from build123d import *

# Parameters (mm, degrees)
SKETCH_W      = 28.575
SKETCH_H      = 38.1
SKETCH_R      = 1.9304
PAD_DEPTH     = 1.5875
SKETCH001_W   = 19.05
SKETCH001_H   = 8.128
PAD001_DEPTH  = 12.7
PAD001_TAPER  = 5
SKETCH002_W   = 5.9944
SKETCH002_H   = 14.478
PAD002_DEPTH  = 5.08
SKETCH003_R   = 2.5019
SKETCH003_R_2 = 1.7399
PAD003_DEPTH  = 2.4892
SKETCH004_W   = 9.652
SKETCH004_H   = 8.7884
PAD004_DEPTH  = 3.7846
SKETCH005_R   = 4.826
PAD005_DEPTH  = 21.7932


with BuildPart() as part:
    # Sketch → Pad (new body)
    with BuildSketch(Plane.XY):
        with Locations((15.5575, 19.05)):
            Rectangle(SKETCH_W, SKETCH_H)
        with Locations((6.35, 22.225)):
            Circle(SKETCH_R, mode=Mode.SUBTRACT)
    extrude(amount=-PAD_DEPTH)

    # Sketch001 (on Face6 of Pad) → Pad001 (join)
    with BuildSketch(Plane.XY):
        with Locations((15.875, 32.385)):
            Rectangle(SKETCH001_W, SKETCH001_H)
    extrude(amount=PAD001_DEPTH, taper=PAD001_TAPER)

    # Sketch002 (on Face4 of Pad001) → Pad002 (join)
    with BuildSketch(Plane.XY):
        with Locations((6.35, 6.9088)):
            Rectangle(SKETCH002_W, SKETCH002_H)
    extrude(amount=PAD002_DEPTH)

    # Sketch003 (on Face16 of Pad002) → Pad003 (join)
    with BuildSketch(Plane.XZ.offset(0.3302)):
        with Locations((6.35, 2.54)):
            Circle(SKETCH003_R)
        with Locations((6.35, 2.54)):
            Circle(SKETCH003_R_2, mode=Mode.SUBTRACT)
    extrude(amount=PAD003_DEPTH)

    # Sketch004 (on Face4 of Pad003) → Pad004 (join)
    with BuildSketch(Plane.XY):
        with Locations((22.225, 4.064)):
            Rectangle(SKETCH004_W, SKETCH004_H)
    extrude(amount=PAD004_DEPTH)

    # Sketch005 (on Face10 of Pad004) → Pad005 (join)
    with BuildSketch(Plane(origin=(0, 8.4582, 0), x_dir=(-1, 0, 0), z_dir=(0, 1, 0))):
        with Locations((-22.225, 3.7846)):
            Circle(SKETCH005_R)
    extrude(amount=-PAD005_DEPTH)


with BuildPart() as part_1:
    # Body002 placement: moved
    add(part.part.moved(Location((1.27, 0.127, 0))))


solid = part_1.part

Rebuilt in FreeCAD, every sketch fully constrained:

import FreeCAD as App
import Part
import Sketcher

V = App.Vector
Q = App.Units.Quantity

doc = App.newDocument("Part")
body = doc.addObject("PartDesign::Body", "Body")

sketch1 = body.newObject("Sketcher::SketchObject", "Sketch")
sketch1.AttachmentSupport = (doc.getObject("XY_Plane"), [""])
sketch1.MapMode = "FlatFace"
sketch1.addGeometry(Part.LineSegment(V(1.27, 38.1, 0), V(1.27, 0, 0)), False)
sketch1.addGeometry(Part.LineSegment(V(1.27, 0, 0), V(29.845, 0, 0)), False)
sketch1.addGeometry(Part.LineSegment(V(29.845, 0, 0), V(29.845, 38.1, 0)), False)
sketch1.addGeometry(Part.LineSegment(V(29.845, 38.1, 0), V(1.27, 38.1, 0)), False)
sketch1.addGeometry(Part.Circle(V(6.35, 22.225, 0), V(0, 0, 1), 1.9304), False)
sketch1.addConstraint(Sketcher.Constraint("Coincident", 0, 2, 1, 1))
sketch1.addConstraint(Sketcher.Constraint("Coincident", 1, 2, 2, 1))
sketch1.addConstraint(Sketcher.Constraint("Coincident", 2, 2, 3, 1))
sketch1.addConstraint(Sketcher.Constraint("Coincident", 3, 2, 0, 1))
sketch1.addConstraint(Sketcher.Constraint("Vertical", 0))
sketch1.addConstraint(Sketcher.Constraint("Horizontal", 1))
sketch1.addConstraint(Sketcher.Constraint("Vertical", 2))
sketch1.addConstraint(Sketcher.Constraint("Horizontal", 3))
sketch1.addConstraint(Sketcher.Constraint("PointOnObject", 0, 2, -1))
sketch1.addConstraint(Sketcher.Constraint("Diameter", 4, Q("0.152 in")))
sketch1.addConstraint(Sketcher.Constraint("DistanceY", 0, 2, 0, 1, Q("1.5 in")))
sketch1.addConstraint(Sketcher.Constraint("DistanceX", 0, 2, 4, 3, Q("0.2 in")))
sketch1.addConstraint(Sketcher.Constraint("DistanceX", 1, 1, 1, 2, Q("1.125 in")))
sketch1.addConstraint(Sketcher.Constraint("DistanceX", -1, 1, 4, 3, Q("0.25 in")))
sketch1.addConstraint(Sketcher.Constraint("DistanceY", -1, 1, 4, 3, Q("0.875 in")))
pad1 = body.newObject("PartDesign::Pad", "Pad")
pad1.Profile = sketch1
pad1.Length = Q("0.0625 in")
pad1.Reversed = True

sketch2 = body.newObject("Sketcher::SketchObject", "Sketch001")
sketch2.AttachmentSupport = (doc.getObject("XY_Plane"), [""])
sketch2.MapMode = "FlatFace"
sketch2.addGeometry(Part.LineSegment(V(6.35, 36.449, 0), V(6.35, 28.321, 0)), False)
sketch2.addGeometry(Part.LineSegment(V(6.35, 28.321, 0), V(25.4, 28.321, 0)), False)
sketch2.addGeometry(Part.LineSegment(V(25.4, 28.321, 0), V(25.4, 36.449, 0)), False)
sketch2.addGeometry(Part.LineSegment(V(25.4, 36.449, 0), V(6.35, 36.449, 0)), False)
sketch2.addConstraint(Sketcher.Constraint("Coincident", 0, 2, 1, 1))
sketch2.addConstraint(Sketcher.Constraint("Coincident", 1, 2, 2, 1))
sketch2.addConstraint(Sketcher.Constraint("Coincident", 2, 2, 3, 1))
sketch2.addConstraint(Sketcher.Constraint("Coincident", 3, 2, 0, 1))
sketch2.addConstraint(Sketcher.Constraint("Vertical", 0))
sketch2.addConstraint(Sketcher.Constraint("Horizontal", 1))
sketch2.addConstraint(Sketcher.Constraint("Vertical", 2))
sketch2.addConstraint(Sketcher.Constraint("Horizontal", 3))
sketch2.addConstraint(Sketcher.Constraint("DistanceX", -1, 1, 1, 2, Q("1 in")))
sketch2.addConstraint(Sketcher.Constraint("DistanceX", 1, 1, 1, 2, Q("0.75 in")))
sketch2.addConstraint(Sketcher.Constraint("DistanceY", 0, 2, 0, 1, Q("0.32 in")))
sketch2.addConstraint(Sketcher.Constraint("DistanceY", -1, 1, 0, 2, Q("1.115 in")))
pad2 = body.newObject("PartDesign::Pad", "Pad001")
pad2.Profile = sketch2
pad2.Length = Q("0.5 in")
pad2.TaperAngle = -5

sketch3 = body.newObject("Sketcher::SketchObject", "Sketch002")
sketch3.AttachmentSupport = (doc.getObject("XY_Plane"), [""])
sketch3.MapMode = "FlatFace"
sketch3.addGeometry(Part.LineSegment(V(3.3528, 14.1478, 0), V(3.3528, -0.3302, 0)), False)
sketch3.addGeometry(Part.LineSegment(V(3.3528, -0.3302, 0), V(9.3472, -0.3302, 0)), False)
sketch3.addGeometry(Part.LineSegment(V(9.3472, -0.3302, 0), V(9.3472, 14.1478, 0)), False)
sketch3.addGeometry(Part.LineSegment(V(9.3472, 14.1478, 0), V(3.3528, 14.1478, 0)), False)
sketch3.addConstraint(Sketcher.Constraint("Coincident", 0, 2, 1, 1))
sketch3.addConstraint(Sketcher.Constraint("Coincident", 1, 2, 2, 1))
sketch3.addConstraint(Sketcher.Constraint("Coincident", 2, 2, 3, 1))
sketch3.addConstraint(Sketcher.Constraint("Coincident", 3, 2, 0, 1))
sketch3.addConstraint(Sketcher.Constraint("Vertical", 0))
sketch3.addConstraint(Sketcher.Constraint("Horizontal", 1))
sketch3.addConstraint(Sketcher.Constraint("Vertical", 2))
sketch3.addConstraint(Sketcher.Constraint("Horizontal", 3))
sketch3.addConstraint(Sketcher.Constraint("DistanceY", 0, 2, 0, 1, Q("0.57 in")))
sketch3.addConstraint(Sketcher.Constraint("DistanceX", 1, 1, 1, 2, Q("0.236 in")))
sketch3.addConstraint(Sketcher.Constraint("DistanceX", -1, 1, 0, 2, Q("0.132 in")))
sketch3.addConstraint(Sketcher.Constraint("DistanceY", 0, 2, -1, 1, Q("0.013 in")))
pad3 = body.newObject("PartDesign::Pad", "Pad002")
pad3.Profile = sketch3
pad3.Length = Q("0.2 in")

sketch4 = body.newObject("Sketcher::SketchObject", "Sketch003")
sketch4.AttachmentSupport = (doc.getObject("XZ_Plane"), [""])
sketch4.MapMode = "FlatFace"
sketch4.AttachmentOffset = App.Placement(V(0, 0, 0.013 * 25.4), App.Rotation())
sketch4.addGeometry(Part.Circle(V(6.35, 2.54, 0), V(0, 0, 1), 2.5019), False)
sketch4.addGeometry(Part.Circle(V(6.35, 2.54, 0), V(0, 0, 1), 1.7399), False)
sketch4.addConstraint(Sketcher.Constraint("Coincident", 1, 3, 0, 3))
sketch4.addConstraint(Sketcher.Constraint("Diameter", 0, Q("0.197 in")))
sketch4.addConstraint(Sketcher.Constraint("Diameter", 1, Q("0.137 in")))
sketch4.addConstraint(Sketcher.Constraint("DistanceY", -1, 1, 0, 3, Q("0.1 in")))
sketch4.addConstraint(Sketcher.Constraint("DistanceX", -1, 1, 0, 3, Q("0.25 in")))
pad4 = body.newObject("PartDesign::Pad", "Pad003")
pad4.Profile = sketch4
pad4.Length = Q("0.098 in")

sketch5 = body.newObject("Sketcher::SketchObject", "Sketch004")
sketch5.AttachmentSupport = (doc.getObject("XY_Plane"), [""])
sketch5.MapMode = "FlatFace"
sketch5.addGeometry(Part.LineSegment(V(17.399, 8.4582, 0), V(17.399, -0.3302, 0)), False)
sketch5.addGeometry(Part.LineSegment(V(17.399, -0.3302, 0), V(27.051, -0.3302, 0)), False)
sketch5.addGeometry(Part.LineSegment(V(27.051, -0.3302, 0), V(27.051, 8.4582, 0)), False)
sketch5.addGeometry(Part.LineSegment(V(27.051, 8.4582, 0), V(17.399, 8.4582, 0)), False)
sketch5.addConstraint(Sketcher.Constraint("Coincident", 0, 2, 1, 1))
sketch5.addConstraint(Sketcher.Constraint("Coincident", 1, 2, 2, 1))
sketch5.addConstraint(Sketcher.Constraint("Coincident", 2, 2, 3, 1))
sketch5.addConstraint(Sketcher.Constraint("Coincident", 3, 2, 0, 1))
sketch5.addConstraint(Sketcher.Constraint("Vertical", 0))
sketch5.addConstraint(Sketcher.Constraint("Horizontal", 1))
sketch5.addConstraint(Sketcher.Constraint("Vertical", 2))
sketch5.addConstraint(Sketcher.Constraint("Horizontal", 3))
sketch5.addConstraint(Sketcher.Constraint("DistanceX", 1, 1, 1, 2, Q("0.38 in")))
sketch5.addConstraint(Sketcher.Constraint("DistanceY", 0, 2, 0, 1, Q("0.346 in")))
sketch5.addConstraint(Sketcher.Constraint("DistanceX", -1, 1, 0, 2, Q("0.685 in")))
sketch5.addConstraint(Sketcher.Constraint("DistanceY", 0, 2, -1, 1, Q("0.013 in")))
pad5 = body.newObject("PartDesign::Pad", "Pad004")
pad5.Profile = sketch5
pad5.Length = Q("0.149 in")

sketch6 = body.newObject("Sketcher::SketchObject", "Sketch005")
sketch6.AttachmentSupport = (doc.getObject("XZ_Plane"), [""])
sketch6.MapMode = "FlatFace"
sketch6.AttachmentOffset = App.Placement(V(0, 0, -0.333 * 25.4), App.Rotation())
sketch6.addGeometry(Part.Circle(V(22.225, 3.7846, 0), V(0, 0, 1), 4.826), False)
sketch6.addConstraint(Sketcher.Constraint("Diameter", 0, Q("0.38 in")))
sketch6.addConstraint(Sketcher.Constraint("DistanceX", -1, 1, 0, 3, Q("0.875 in")))
sketch6.addConstraint(Sketcher.Constraint("DistanceY", -1, 1, 0, 3, Q("0.149 in")))
pad6 = body.newObject("PartDesign::Pad", "Pad005")
pad6.Profile = sketch6
pad6.Length = Q("0.858 in")
body2 = doc.addObject("PartDesign::Body", "Body001")
doc.recompute()

body.Placement = App.Placement(V(1.27, 0.127, 0), App.Rotation(V(0, 0, 1), 0))
boolean = body2.newObject("PartDesign::Boolean", "Boolean")
boolean.Type = "Fuse"
boolean.addObjects([body])

doc.recompute()
